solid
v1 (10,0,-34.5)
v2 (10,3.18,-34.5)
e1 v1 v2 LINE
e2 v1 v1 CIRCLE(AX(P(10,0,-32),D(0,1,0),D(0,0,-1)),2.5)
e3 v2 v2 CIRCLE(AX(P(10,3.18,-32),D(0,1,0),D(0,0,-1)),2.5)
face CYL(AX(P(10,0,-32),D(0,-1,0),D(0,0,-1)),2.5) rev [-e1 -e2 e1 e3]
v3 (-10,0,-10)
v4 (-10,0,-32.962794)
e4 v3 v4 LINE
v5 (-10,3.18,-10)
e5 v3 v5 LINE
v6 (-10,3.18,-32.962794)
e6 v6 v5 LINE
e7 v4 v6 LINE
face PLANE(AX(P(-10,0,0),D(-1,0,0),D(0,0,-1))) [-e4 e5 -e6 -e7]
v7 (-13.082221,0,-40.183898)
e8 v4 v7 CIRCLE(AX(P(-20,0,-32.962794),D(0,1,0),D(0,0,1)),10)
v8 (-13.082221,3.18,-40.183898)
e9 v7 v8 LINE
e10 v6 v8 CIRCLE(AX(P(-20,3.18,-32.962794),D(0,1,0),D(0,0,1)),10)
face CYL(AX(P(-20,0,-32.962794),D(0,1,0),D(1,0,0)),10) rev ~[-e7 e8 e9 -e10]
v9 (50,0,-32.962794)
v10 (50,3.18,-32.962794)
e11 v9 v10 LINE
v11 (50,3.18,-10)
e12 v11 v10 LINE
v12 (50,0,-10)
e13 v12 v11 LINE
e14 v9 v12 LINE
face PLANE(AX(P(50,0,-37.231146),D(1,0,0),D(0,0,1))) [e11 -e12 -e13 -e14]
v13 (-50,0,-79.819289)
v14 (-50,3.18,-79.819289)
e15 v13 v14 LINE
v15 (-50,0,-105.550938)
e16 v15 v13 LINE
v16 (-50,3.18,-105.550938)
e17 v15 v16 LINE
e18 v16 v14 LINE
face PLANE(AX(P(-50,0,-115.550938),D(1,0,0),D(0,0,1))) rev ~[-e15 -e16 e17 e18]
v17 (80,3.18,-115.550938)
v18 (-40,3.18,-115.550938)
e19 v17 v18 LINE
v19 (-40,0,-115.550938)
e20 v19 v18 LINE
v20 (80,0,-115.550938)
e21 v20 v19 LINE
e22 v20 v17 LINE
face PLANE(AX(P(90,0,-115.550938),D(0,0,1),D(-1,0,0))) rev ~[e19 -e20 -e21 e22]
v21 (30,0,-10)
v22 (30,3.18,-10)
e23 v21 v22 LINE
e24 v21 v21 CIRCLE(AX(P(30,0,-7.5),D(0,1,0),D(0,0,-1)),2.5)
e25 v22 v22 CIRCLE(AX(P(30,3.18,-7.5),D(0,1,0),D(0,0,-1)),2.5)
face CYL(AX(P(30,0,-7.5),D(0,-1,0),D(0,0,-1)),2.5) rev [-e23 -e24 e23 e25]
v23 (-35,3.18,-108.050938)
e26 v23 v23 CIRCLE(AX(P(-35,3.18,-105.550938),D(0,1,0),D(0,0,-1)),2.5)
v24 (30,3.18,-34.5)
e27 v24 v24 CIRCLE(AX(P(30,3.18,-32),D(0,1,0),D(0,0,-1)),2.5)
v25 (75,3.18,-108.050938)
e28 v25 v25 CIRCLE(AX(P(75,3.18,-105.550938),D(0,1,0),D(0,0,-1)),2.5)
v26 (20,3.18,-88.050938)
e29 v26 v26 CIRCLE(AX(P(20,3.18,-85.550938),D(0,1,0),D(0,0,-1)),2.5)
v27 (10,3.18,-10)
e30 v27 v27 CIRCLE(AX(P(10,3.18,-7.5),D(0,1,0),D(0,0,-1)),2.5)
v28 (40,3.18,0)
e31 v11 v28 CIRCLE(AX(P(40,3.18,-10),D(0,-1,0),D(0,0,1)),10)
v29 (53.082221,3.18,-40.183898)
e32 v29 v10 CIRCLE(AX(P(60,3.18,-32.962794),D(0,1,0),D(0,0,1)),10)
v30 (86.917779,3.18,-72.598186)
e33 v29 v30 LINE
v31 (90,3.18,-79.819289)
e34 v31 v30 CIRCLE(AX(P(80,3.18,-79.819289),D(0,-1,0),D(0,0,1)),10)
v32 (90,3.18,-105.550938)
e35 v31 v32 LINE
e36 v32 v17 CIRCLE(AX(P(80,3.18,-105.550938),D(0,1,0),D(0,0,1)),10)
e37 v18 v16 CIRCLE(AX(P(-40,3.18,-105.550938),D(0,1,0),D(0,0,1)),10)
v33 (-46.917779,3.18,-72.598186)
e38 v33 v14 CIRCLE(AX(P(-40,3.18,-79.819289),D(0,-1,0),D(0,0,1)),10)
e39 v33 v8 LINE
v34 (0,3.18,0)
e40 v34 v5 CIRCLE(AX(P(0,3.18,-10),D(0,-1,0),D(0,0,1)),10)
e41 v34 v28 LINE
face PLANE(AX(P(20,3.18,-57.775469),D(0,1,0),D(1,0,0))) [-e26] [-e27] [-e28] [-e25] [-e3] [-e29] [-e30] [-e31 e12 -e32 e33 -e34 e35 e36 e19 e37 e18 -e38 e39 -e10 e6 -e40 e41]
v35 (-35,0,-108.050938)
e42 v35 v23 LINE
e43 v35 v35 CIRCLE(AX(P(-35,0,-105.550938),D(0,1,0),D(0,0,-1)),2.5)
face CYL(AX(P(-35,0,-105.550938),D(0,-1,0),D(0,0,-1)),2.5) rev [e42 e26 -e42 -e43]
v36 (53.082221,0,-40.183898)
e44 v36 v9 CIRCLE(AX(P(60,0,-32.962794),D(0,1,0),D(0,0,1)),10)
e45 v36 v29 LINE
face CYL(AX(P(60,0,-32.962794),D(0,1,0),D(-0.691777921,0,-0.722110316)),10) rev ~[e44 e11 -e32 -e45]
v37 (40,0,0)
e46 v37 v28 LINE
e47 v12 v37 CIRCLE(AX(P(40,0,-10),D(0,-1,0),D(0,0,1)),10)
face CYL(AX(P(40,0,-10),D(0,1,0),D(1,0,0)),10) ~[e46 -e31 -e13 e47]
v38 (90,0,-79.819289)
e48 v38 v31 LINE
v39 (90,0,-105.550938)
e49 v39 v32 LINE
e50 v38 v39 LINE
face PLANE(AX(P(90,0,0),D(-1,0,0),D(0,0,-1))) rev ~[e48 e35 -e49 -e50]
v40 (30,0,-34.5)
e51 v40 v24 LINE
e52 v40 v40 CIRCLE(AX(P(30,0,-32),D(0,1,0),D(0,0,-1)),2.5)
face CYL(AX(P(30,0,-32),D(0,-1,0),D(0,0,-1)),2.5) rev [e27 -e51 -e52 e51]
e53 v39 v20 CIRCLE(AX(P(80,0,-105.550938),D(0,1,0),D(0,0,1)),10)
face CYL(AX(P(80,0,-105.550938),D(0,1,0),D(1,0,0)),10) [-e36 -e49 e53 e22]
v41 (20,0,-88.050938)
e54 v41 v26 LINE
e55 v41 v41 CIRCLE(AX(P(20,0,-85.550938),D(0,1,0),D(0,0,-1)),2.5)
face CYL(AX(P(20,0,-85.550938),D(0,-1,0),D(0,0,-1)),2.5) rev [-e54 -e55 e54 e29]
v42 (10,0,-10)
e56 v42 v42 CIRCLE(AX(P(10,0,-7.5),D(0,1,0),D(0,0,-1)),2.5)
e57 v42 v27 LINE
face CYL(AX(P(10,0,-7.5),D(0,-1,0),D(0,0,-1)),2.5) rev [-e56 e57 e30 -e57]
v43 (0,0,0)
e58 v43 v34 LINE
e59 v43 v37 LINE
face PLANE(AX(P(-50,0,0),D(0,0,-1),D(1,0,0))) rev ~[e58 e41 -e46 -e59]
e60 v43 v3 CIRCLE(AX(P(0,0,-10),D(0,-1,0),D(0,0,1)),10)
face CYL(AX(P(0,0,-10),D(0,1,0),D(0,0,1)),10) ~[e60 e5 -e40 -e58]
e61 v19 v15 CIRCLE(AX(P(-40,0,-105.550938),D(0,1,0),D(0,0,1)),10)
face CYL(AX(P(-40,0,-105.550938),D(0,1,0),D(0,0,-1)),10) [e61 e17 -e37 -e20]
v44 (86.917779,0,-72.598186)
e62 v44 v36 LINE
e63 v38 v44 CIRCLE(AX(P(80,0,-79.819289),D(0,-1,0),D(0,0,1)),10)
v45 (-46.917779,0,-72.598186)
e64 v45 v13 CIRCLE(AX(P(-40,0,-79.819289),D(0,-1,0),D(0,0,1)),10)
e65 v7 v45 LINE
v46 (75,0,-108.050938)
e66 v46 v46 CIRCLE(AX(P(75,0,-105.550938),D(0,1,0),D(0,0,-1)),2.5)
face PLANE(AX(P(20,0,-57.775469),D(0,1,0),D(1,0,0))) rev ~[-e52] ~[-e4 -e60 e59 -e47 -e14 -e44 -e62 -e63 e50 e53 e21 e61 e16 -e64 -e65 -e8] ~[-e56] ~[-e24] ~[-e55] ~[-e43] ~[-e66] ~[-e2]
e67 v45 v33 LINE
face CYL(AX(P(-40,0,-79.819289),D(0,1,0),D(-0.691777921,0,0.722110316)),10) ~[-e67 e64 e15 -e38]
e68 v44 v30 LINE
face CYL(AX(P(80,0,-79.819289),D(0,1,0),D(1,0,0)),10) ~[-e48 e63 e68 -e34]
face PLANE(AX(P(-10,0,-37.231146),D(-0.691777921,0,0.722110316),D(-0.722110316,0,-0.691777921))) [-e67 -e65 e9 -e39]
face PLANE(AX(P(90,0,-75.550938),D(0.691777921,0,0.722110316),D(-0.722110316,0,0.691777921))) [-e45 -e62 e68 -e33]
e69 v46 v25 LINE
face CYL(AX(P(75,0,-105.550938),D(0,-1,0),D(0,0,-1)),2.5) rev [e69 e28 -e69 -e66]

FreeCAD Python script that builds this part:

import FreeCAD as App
import Part
import Sketcher

V = App.Vector


def edges_at(feature, points):
    """Names of the edges that pass closest to the given points."""
    edges = feature.Shape.Edges
    near = lambda p: min(range(len(edges)), key=lambda i: edges[i].distToShape(Part.Vertex(*p))[0])
    return sorted({f"Edge{near(p) + 1}" for p in points})

doc = App.newDocument("Part")
body = doc.addObject("PartDesign::Body", "Body")

sketch1 = doc.addObject("Sketcher::SketchObject", "Sketch")
body.addObject(sketch1)
sketch1.AttachmentSupport = (doc.XZ_Plane, [""])
sketch1.MapMode = "FlatFace"
sketch1.addGeometry([
    Part.LineSegment(V(90, 0, 0), V(90, -115.550938, 0)),
    Part.LineSegment(V(90, -115.550938, 0), V(-50, -115.550938, 0)),
    Part.LineSegment(V(-50, -115.550938, 0), V(-50, 0, 0)),
    Part.LineSegment(V(-50, 0, 0), V(90, 0, 0)),
    Part.Circle(V(10, -7.5, 0), V(0, 0, 1), 2.5),
    Part.Circle(V(10, -32, 0), V(0, 0, 1), 2.5),
    Part.Circle(V(30, -7.5, 0), V(0, 0, 1), 2.5),
    Part.Circle(V(30, -32, 0), V(0, 0, 1), 2.5),
    Part.Circle(V(-35, -105.550938, 0), V(0, 0, 1), 2.5),
    Part.Circle(V(20, -85.550938, 0), V(0, 0, 1), 2.5),
    Part.Circle(V(75, -105.550938, 0), V(0, 0, 1), 2.5),
], False)
sketch1.addConstraint([
    Sketcher.Constraint("Coincident", 0, 2, 1, 1),
    Sketcher.Constraint("Coincident", 1, 2, 2, 1),
    Sketcher.Constraint("Coincident", 2, 2, 3, 1),
    Sketcher.Constraint("Coincident", 3, 2, 0, 1),
    Sketcher.Constraint("Vertical", 0),
    Sketcher.Constraint("Horizontal", 1),
    Sketcher.Constraint("Vertical", 2),
    Sketcher.Constraint("Horizontal", 3),
    Sketcher.Constraint("Equal", 4, 5),
    Sketcher.Constraint("Equal", 5, 6),
    Sketcher.Constraint("Equal", 6, 7),
    Sketcher.Constraint("Equal", 7, 8),
    Sketcher.Constraint("Equal", 8, 9),
    Sketcher.Constraint("Equal", 9, 10),
    Sketcher.Constraint("PointOnObject", 2, 2, -1),
    Sketcher.Constraint("Horizontal", 4, 3, 6, 3),
    Sketcher.Constraint("Horizontal", 5, 3, 7, 3),
    Sketcher.Constraint("Horizontal", 8, 3, 10, 3),
    Sketcher.Constraint("Vertical", 4, 3, 5, 3),
    Sketcher.Constraint("Vertical", 6, 3, 7, 3),
    Sketcher.Constraint("Diameter", 4, 5.0),
    Sketcher.Constraint("DistanceX", 1, 2, 1, 1, 140.0),
    Sketcher.Constraint("DistanceX", -1, 1, 4, 3, 10.0),
    Sketcher.Constraint("DistanceY", 5, 3, -1, 1, 32.0),
    Sketcher.Constraint("DistanceX", -1, 1, 6, 3, 30.0),
    Sketcher.Constraint("DistanceX", 8, 3, -1, 1, 35.0),
    Sketcher.Constraint("DistanceX", -1, 1, 9, 3, 20.0),
    Sketcher.Constraint("DistanceX", -1, 1, 10, 3, 75.0),
    Sketcher.Constraint("DistanceX", -1, 1, 0, 2, 90.0),
    Sketcher.Constraint("DistanceY", 8, 3, 9, 3, 20.0),
    Sketcher.Constraint("DistanceY", 0, 2, 10, 3, 10.0),
    Sketcher.Constraint("DistanceY", 4, 3, -1, 1, 7.5),
    Sketcher.Constraint("DistanceY", 0, 2, 0, 1, 115.550938),
])
pad1 = doc.addObject("PartDesign::Pad", "Pad")
body.addObject(pad1)
pad1.Profile = sketch1
pad1.Length = 3.18
pad1.Reversed = True

sketch2 = doc.addObject("Sketcher::SketchObject", "Sketch001")
body.addObject(sketch2)
sketch2.AttachmentSupport = (doc.XZ_Plane, [""])
sketch2.MapMode = "FlatFace"
sketch2.addGeometry([
    Part.LineSegment(V(50, -37.231146, 0), V(90, -75.550938, 0)),
    Part.LineSegment(V(90, -75.550938, 0), V(90, 0, 0)),
    Part.LineSegment(V(90, 0, 0), V(50, 0, 0)),
    Part.LineSegment(V(50, 0, 0), V(50, -37.231146, 0)),
    Part.LineSegment(V(-50, -75.550938, 0), V(-10, -37.231146, 0)),
    Part.LineSegment(V(-10, -37.231146, 0), V(-10, 0, 0)),
    Part.LineSegment(V(-10, 0, 0), V(-50, 0, 0)),
    Part.LineSegment(V(-50, 0, 0), V(-50, -75.550938, 0)),
], False)
sketch2.addConstraint([
    Sketcher.Constraint("Coincident", 0, 2, 1, 1),
    Sketcher.Constraint("Coincident", 1, 2, 2, 1),
    Sketcher.Constraint("Coincident", 2, 2, 3, 1),
    Sketcher.Constraint("Coincident", 3, 2, 0, 1),
    Sketcher.Constraint("Coincident", 4, 2, 5, 1),
    Sketcher.Constraint("Coincident", 5, 2, 6, 1),
    Sketcher.Constraint("Coincident", 6, 2, 7, 1),
    Sketcher.Constraint("Coincident", 7, 2, 4, 1),
    Sketcher.Constraint("Vertical", 1),
    Sketcher.Constraint("Horizontal", 2),
    Sketcher.Constraint("Vertical", 3),
    Sketcher.Constraint("Vertical", 5),
    Sketcher.Constraint("Horizontal", 6),
    Sketcher.Constraint("Vertical", 7),
    Sketcher.Constraint("Symmetric", 2, 2, 6, 2, -1, 1),
    Sketcher.Constraint("PointOnObject", 1, 2, -1),
    Sketcher.Constraint("Horizontal", 3, 2, 4, 2),
    Sketcher.Constraint("Horizontal", 0, 2, 7, 2),
    Sketcher.Constraint("Equal", 2, 6),
    Sketcher.Constraint("DistanceX", 2, 2, 2, 1, 40.0),
    Sketcher.Constraint("DistanceX", -1, 1, 0, 2, 90.0),
    Sketcher.Constraint("Distance", 0, 55.393198),
    Sketcher.Constraint("DistanceY", 1, 1, 1, 2, 75.550938),
])
pocket1 = doc.addObject("PartDesign::Pocket", "Pocket")
body.addObject(pocket1)
pocket1.Profile = sketch2
pocket1.Type = "ThroughAll"
doc.recompute()

fillet = doc.addObject("PartDesign::Fillet", "Fillet")
body.addObject(fillet)
fillet.Base = (pocket1, edges_at(pocket1, [
    (-50, 1.59, -115.551),
    (90, 1.59, -115.551),
    (90, 1.59, -75.551),
    (50, 1.59, -37.231),
    (50, 1.59, 0),
    (-10, 1.59, 0),
    (-10, 1.59, -37.231),
    (-50, 1.59, -75.551),
]))
fillet.Radius = 10

doc.recompute()
